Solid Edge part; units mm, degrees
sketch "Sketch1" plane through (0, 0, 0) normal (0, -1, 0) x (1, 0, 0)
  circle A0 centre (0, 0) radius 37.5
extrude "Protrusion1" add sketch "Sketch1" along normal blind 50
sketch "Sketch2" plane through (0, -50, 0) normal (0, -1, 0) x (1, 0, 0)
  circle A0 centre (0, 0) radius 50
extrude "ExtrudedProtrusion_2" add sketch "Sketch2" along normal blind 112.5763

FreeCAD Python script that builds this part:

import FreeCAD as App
import Part
import Sketcher
Q = App.Units.Quantity

doc = App.newDocument("Part")
body = doc.addObject("PartDesign::Body", "Body")

# Sketch on XZ plane
sketch1 = body.newObject("Sketcher::SketchObject", "Sketch")
sketch1.AttachmentSupport = (doc.getObject("XZ_Plane"), [""])
sketch1.MapMode = "FlatFace"
sketch1.addGeometry(Part.Circle(App.Vector(0, 0, 0), App.Vector(0, 0, 1), 38), False)
sketch1.addConstraint([
    Sketcher.Constraint("Coincident", 0, 3, -1, 1),
    Sketcher.Constraint("Diameter", 0, Q("75 mm")),
])
pad1 = body.newObject("PartDesign::Pad", "Pad")
pad1.Profile = sketch1
pad1.Length = 50

# Sketch on XZ plane
sketch2 = body.newObject("Sketcher::SketchObject", "Sketch001")
sketch2.AttachmentSupport = (doc.getObject("XZ_Plane"), [""])
sketch2.MapMode = "FlatFace"
sketch2.AttachmentOffset = App.Placement(App.Vector(0, 0, 50), App.Rotation())
sketch2.addGeometry(Part.Circle(App.Vector(0, 0, 0), App.Vector(0, 0, 1), 50), False)
sketch2.addConstraint([
    Sketcher.Constraint("Coincident", 0, 3, -1, 1),
    Sketcher.Constraint("Diameter", 0, Q("100 mm")),
])
pad2 = body.newObject("PartDesign::Pad", "Pad001")
pad2.Profile = sketch2
pad2.Length = 112.5763

doc.recompute()
